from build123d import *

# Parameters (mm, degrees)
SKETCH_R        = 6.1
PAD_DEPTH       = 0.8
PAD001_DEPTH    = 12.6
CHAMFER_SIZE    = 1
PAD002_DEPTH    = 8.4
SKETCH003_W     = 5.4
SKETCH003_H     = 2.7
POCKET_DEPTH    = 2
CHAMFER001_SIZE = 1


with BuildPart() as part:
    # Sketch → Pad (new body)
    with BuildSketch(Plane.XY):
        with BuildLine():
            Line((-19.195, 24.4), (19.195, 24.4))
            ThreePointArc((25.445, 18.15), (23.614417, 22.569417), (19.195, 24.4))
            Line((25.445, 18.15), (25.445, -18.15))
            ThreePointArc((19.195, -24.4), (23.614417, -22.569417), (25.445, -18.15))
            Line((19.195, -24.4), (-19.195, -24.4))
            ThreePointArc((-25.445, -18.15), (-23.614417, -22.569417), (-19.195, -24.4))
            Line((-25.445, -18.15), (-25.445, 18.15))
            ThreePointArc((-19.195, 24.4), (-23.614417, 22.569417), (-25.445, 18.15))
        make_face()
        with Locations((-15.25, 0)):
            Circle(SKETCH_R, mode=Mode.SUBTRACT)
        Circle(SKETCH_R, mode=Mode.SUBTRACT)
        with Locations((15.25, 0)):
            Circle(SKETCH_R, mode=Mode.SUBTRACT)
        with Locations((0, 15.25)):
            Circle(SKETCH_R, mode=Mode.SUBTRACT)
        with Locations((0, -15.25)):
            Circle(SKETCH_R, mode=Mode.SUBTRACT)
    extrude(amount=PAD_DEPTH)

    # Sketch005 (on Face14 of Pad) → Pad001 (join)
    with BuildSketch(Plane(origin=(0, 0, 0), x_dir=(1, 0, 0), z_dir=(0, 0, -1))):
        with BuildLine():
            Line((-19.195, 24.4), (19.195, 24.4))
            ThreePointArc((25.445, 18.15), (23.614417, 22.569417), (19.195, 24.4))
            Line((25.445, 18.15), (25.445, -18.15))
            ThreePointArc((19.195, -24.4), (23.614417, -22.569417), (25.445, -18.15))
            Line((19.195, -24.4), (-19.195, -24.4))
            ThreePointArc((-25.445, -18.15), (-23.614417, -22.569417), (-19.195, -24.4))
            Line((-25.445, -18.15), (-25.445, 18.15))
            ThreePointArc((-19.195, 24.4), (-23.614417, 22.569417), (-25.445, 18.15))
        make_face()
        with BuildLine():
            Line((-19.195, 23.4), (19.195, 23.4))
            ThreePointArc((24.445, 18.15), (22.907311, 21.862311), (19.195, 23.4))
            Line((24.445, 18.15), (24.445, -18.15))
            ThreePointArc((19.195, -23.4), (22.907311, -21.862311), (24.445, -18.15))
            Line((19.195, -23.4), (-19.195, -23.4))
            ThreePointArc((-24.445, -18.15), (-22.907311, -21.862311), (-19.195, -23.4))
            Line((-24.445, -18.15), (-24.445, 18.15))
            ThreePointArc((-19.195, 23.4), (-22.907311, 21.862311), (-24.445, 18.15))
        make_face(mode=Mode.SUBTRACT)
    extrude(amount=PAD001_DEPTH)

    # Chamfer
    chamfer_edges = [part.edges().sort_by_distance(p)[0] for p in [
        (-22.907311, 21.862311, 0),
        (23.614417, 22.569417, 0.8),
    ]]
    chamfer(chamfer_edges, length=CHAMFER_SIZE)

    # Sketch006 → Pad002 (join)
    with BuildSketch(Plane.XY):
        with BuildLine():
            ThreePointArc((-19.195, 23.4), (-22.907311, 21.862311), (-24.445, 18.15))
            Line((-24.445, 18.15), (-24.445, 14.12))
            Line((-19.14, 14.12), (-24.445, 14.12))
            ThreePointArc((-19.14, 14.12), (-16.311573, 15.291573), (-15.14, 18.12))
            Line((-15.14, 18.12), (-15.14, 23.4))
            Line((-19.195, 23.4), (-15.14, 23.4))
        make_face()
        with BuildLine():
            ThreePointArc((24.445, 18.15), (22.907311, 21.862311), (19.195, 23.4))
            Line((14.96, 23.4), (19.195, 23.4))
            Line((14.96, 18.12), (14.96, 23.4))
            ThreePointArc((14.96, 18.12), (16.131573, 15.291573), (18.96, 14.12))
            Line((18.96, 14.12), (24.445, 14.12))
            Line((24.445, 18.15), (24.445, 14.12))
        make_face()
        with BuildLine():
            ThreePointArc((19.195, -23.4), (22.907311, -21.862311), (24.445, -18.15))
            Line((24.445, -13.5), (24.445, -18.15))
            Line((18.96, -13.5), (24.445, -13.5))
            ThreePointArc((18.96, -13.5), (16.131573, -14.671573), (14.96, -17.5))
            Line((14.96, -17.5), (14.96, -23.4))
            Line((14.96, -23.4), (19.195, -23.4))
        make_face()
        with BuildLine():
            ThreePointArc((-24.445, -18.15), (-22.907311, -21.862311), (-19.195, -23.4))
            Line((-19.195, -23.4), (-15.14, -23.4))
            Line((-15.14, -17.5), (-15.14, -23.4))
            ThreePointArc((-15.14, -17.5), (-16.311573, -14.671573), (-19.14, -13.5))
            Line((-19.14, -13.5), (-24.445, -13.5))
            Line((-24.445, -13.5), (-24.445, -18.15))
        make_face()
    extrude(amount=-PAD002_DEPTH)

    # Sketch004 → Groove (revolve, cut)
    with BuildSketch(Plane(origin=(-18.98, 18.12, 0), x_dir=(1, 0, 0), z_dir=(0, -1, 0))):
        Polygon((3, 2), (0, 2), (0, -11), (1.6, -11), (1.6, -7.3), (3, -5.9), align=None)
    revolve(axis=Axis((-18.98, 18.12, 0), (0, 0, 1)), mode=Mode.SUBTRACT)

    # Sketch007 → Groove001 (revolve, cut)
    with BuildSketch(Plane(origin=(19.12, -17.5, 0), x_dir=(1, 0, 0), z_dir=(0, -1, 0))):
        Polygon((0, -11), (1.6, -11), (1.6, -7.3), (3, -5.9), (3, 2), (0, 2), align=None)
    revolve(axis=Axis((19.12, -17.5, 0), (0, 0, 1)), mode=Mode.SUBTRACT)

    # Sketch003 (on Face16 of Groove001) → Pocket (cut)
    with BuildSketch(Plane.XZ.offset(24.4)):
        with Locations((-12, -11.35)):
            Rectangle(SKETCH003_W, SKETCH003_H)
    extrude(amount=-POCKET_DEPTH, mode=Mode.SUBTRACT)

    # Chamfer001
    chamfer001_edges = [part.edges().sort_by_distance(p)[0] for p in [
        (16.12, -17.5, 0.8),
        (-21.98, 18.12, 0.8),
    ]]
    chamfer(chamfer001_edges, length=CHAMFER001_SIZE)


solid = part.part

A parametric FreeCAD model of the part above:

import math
import FreeCAD as App
import Part
import Sketcher
Q = App.Units.Quantity


def edges_at(feature, points):
    """Names of the edges that pass closest to the given points."""
    edges = feature.Shape.Edges
    near = lambda p: min(range(len(edges)), key=lambda i: edges[i].distToShape(Part.Vertex(*p))[0])
    return sorted({f"Edge{near(p) + 1}" for p in points})


def add_polygon(sketch, points):
    """Adds a closed chain of lines whose ends are joined by coincident constraints."""
    first, n = sketch.GeometryCount, len(points)
    for a, b in zip(points, points[1:] + points[:1]):
        sketch.addGeometry(Part.LineSegment(App.Vector(*a, 0), App.Vector(*b, 0)), False)
    for i in range(n):
        sketch.addConstraint(Sketcher.Constraint("Coincident", first + i, 2, first + (i + 1) % n, 1))

doc = App.newDocument("Part")
body = doc.addObject("PartDesign::Body", "Body")

sketch1 = body.newObject("Sketcher::SketchObject", "Sketch")
sketch1.AttachmentSupport = (doc.getObject("XY_Plane"), [""])
sketch1.MapMode = "FlatFace"
sketch1.addGeometry([
    Part.LineSegment(App.Vector(19.195, 24.4, 0), App.Vector(-19.195, 24.4, 0)),
    Part.ArcOfCircle(Part.Circle(App.Vector(-19.194999, 18.149999, 0), App.Vector(0, 0, 1), 6.250001), math.radians(90.000012), math.radians(179.999988)),
    Part.LineSegment(App.Vector(-25.445, 18.15, 0), App.Vector(-25.445, -18.15, 0)),
    Part.ArcOfCircle(Part.Circle(App.Vector(-19.194999, -18.149999, 0), App.Vector(0, 0, 1), 6.250001), math.radians(-179.999988), math.radians(-90.000012)),
    Part.LineSegment(App.Vector(-19.195, -24.4, 0), App.Vector(19.195, -24.4, 0)),
    Part.ArcOfCircle(Part.Circle(App.Vector(19.194999, -18.149999, 0), App.Vector(0, 0, 1), 6.250001), math.radians(-89.999988), math.radians(-0.000012)),
    Part.LineSegment(App.Vector(25.445, -18.15, 0), App.Vector(25.445, 18.15, 0)),
    Part.ArcOfCircle(Part.Circle(App.Vector(19.194999, 18.149999, 0), App.Vector(0, 0, 1), 6.250001), math.radians(0.000012), math.radians(89.999988)),
    Part.Circle(App.Vector(0, -15.25, 0), App.Vector(0, 0, 1), 6.1),
    Part.Circle(App.Vector(15.25, 0, 0), App.Vector(0, 0, 1), 6.1),
    Part.Circle(App.Vector(0, 0, 0), App.Vector(0, 0, 1), 6.1),
    Part.Circle(App.Vector(-15.25, 0, 0), App.Vector(0, 0, 1), 6.1),
    Part.Circle(App.Vector(0, 15.25, 0), App.Vector(0, 0, 1), 6.1),
], False)
sketch1.addConstraint([
    Sketcher.Constraint("Tangent", 0, 2, 1, 1),
    Sketcher.Constraint("Tangent", 1, 2, 2, 1),
    Sketcher.Constraint("Tangent", 2, 2, 3, 1),
    Sketcher.Constraint("Tangent", 3, 2, 4, 1),
    Sketcher.Constraint("Tangent", 4, 2, 5, 1),
    Sketcher.Constraint("Tangent", 5, 2, 6, 1),
    Sketcher.Constraint("Tangent", 6, 2, 7, 1),
    Sketcher.Constraint("Tangent", 7, 2, 0, 1),
    Sketcher.Constraint("Horizontal", 0),
    Sketcher.Constraint("Vertical", 2),
    Sketcher.Constraint("Horizontal", 4),
    Sketcher.Constraint("Vertical", 6),
    Sketcher.Constraint("Coincident", 10, 3, -1, 1),
    Sketcher.Constraint("Equal", 1, 3),
    Sketcher.Constraint("Equal", 3, 5),
    Sketcher.Constraint("Equal", 5, 7),
    Sketcher.Constraint("Equal", 8, 9),
    Sketcher.Constraint("Equal", 9, 10),
    Sketcher.Constraint("Equal", 10, 11),
    Sketcher.Constraint("Equal", 11, 12),
    Sketcher.Constraint("Symmetric", 1, 3, 5, 3, -1, 1),
    Sketcher.Constraint("Symmetric", 9, 3, 11, 3, -1, 1),
    Sketcher.Constraint("Symmetric", 8, 3, 12, 3, -1, 1),
    Sketcher.Constraint("PointOnObject", 8, 3, -2),
    Sketcher.Constraint("PointOnObject", 9, 3, -1),
    Sketcher.Constraint("Diameter", 8, 12.2),
    Sketcher.Constraint("Radius", 1, 6.250001),
    Sketcher.Constraint("DistanceY", 2, 2, 2, 1, 36.3),
    Sketcher.Constraint("DistanceX", 0, 2, 0, 1, 38.39),
    Sketcher.Constraint("DistanceY", 3, 3, 8, 3, 2.899999),
    Sketcher.Constraint("DistanceX", 11, 3, 9, 3, 30.5),
])
pad1 = body.newObject("PartDesign::Pad", "Pad")
pad1.Profile = sketch1
pad1.Length = 0.8

sketch2 = body.newObject("Sketcher::SketchObject", "Sketch001")
sketch2.AttachmentSupport = (doc.getObject("XY_Plane"), [""])
sketch2.MapMode = "FlatFace"
sketch2.addGeometry([
    Part.LineSegment(App.Vector(19.195, -24.4, 0), App.Vector(-19.195, -24.4, 0)),
    Part.ArcOfCircle(Part.Circle(App.Vector(-19.194999, -18.149999, 0), App.Vector(0, 0, 1), 6.250001), math.radians(-179.999988), math.radians(-90.000012)),
    Part.LineSegment(App.Vector(-25.445, -18.15, 0), App.Vector(-25.445, 18.15, 0)),
    Part.ArcOfCircle(Part.Circle(App.Vector(-19.194999, 18.149999, 0), App.Vector(0, 0, 1), 6.250001), math.radians(90.000012), math.radians(179.999988)),
    Part.LineSegment(App.Vector(-19.195, 24.4, 0), App.Vector(19.195, 24.4, 0)),
    Part.ArcOfCircle(Part.Circle(App.Vector(19.194999, 18.149999, 0), App.Vector(0, 0, 1), 6.250001), math.radians(0.000012), math.radians(89.999988)),
    Part.LineSegment(App.Vector(25.445, 18.15, 0), App.Vector(25.445, -18.15, 0)),
    Part.ArcOfCircle(Part.Circle(App.Vector(19.194999, -18.149999, 0), App.Vector(0, 0, 1), 6.250001), math.radians(-89.999988), math.radians(-0.000012)),
    Part.LineSegment(App.Vector(-19.195, -23.4, 0), App.Vector(19.195, -23.4, 0)),
    Part.ArcOfCircle(Part.Circle(App.Vector(19.195001, -18.150001, 0), App.Vector(0, 0, 1), 5.249999), math.radians(-90.000015), math.radians(0.000015)),
    Part.LineSegment(App.Vector(24.445, -18.15, 0), App.Vector(24.445, 18.15, 0)),
    Part.ArcOfCircle(Part.Circle(App.Vector(19.195001, 18.150001, 0), App.Vector(0, 0, 1), 5.249999), math.radians(-0.000015), math.radians(90.000015)),
    Part.LineSegment(App.Vector(19.195, 23.4, 0), App.Vector(-19.195, 23.4, 0)),
    Part.ArcOfCircle(Part.Circle(App.Vector(-19.195001, 18.150001, 0), App.Vector(0, 0, 1), 5.249999), math.radians(89.999985), math.radians(180.000015)),
    Part.LineSegment(App.Vector(-24.445, 18.15, 0), App.Vector(-24.445, -18.15, 0)),
    Part.ArcOfCircle(Part.Circle(App.Vector(-19.195001, -18.150001, 0), App.Vector(0, 0, 1), 5.249999), math.radians(179.999985), math.radians(270.000015)),
], False)
sketch2.addConstraint([
    Sketcher.Constraint("Tangent", 0, 2, 1, 2),
    Sketcher.Constraint("Tangent", 1, 1, 2, 1),
    Sketcher.Constraint("Tangent", 2, 2, 3, 2),
    Sketcher.Constraint("Tangent", 3, 1, 4, 1),
    Sketcher.Constraint("Tangent", 4, 2, 5, 2),
    Sketcher.Constraint("Tangent", 5, 1, 6, 1),
    Sketcher.Constraint("Tangent", 6, 2, 7, 2),
    Sketcher.Constraint("Tangent", 7, 1, 0, 1),
    Sketcher.Constraint("Tangent", 8, 2, 9, 1),
    Sketcher.Constraint("Tangent", 9, 2, 10, 1),
    Sketcher.Constraint("Tangent", 10, 2, 11, 1),
    Sketcher.Constraint("Tangent", 11, 2, 12, 1),
    Sketcher.Constraint("Tangent", 12, 2, 13, 1),
    Sketcher.Constraint("Tangent", 13, 2, 14, 1),
    Sketcher.Constraint("Tangent", 14, 2, 15, 1),
    Sketcher.Constraint("Tangent", 15, 2, 8, 1),
    Sketcher.Constraint("Horizontal", 0),
    Sketcher.Constraint("Vertical", 2),
    Sketcher.Constraint("Horizontal", 4),
    Sketcher.Constraint("Vertical", 6),
    Sketcher.Constraint("Horizontal", 8),
    Sketcher.Constraint("Vertical", 10),
    Sketcher.Constraint("Horizontal", 12),
    Sketcher.Constraint("Vertical", 14),
    Sketcher.Constraint("Coincident", 9, 3, 7, 3),
    Sketcher.Constraint("Coincident", 11, 3, 5, 3),
    Sketcher.Constraint("Coincident", 13, 3, 3, 3),
    Sketcher.Constraint("Equal", 1, 3),
    Sketcher.Constraint("Equal", 3, 5),
    Sketcher.Constraint("Equal", 5, 7),
    Sketcher.Constraint("Equal", 13, 15),
    Sketcher.Constraint("Symmetric", 1, 3, 5, 3, -1, 1),
    Sketcher.Constraint("Radius", 1, 6.250001),
    Sketcher.Constraint("Radius", 9, 5.249999),
    Sketcher.Constraint("DistanceY", 2, 1, 2, 2, 36.3),
    Sketcher.Constraint("DistanceX", 0, 2, 0, 1, 38.39),
])
pad2 = body.newObject("PartDesign::Pad", "Pad001")
pad2.Profile = sketch2
pad2.Length = 12.6
pad2.Reversed = True
doc.recompute()

chamfer = body.newObject("PartDesign::Chamfer", "Chamfer")
chamfer.Base = (pad2, edges_at(pad2, [(-22.907, 21.862, 0), (23.614, 22.569, 0.8)]))
chamfer.Size = 1

sketch3 = body.newObject("Sketcher::SketchObject", "Sketch002")
sketch3.AttachmentSupport = (doc.getObject("XY_Plane"), [""])
sketch3.MapMode = "FlatFace"
sketch3.addGeometry([
    Part.ArcOfCircle(Part.Circle(App.Vector(-19.195001, 18.150001, 0), App.Vector(0, 0, 1), 5.249999), math.radians(89.999985), math.radians(180.000015)),
    Part.LineSegment(App.Vector(-24.445, 18.15, 0), App.Vector(-24.445, 14.12, 0)),
    Part.LineSegment(App.Vector(-24.445, 14.12, 0), App.Vector(-19.14, 14.12, 0)),
    Part.ArcOfCircle(Part.Circle(App.Vector(-19.14, 18.12, 0), App.Vector(0, 0, 1), 4), math.radians(-89.999994), math.radians(-0.000006)),
    Part.LineSegment(App.Vector(-15.14, 18.12, 0), App.Vector(-15.14, 23.4, 0)),
    Part.LineSegment(App.Vector(-15.14, 23.4, 0), App.Vector(-19.195, 23.4, 0)),
    Part.ArcOfCircle(Part.Circle(App.Vector(19.195001, 18.150001, 0), App.Vector(0, 0, 1), 5.249999), math.radians(-0.000015), math.radians(90.000015)),
    Part.LineSegment(App.Vector(19.195, 23.4, 0), App.Vector(14.96, 23.4, 0)),
    Part.LineSegment(App.Vector(14.96, 23.4, 0), App.Vector(14.96, 18.12, 0)),
    Part.ArcOfCircle(Part.Circle(App.Vector(18.96, 18.12, 0), App.Vector(0, 0, 1), 4), math.radians(-179.999994), math.radians(-90.000006)),
    Part.LineSegment(App.Vector(18.96, 14.12, 0), App.Vector(24.445, 14.12, 0)),
    Part.LineSegment(App.Vector(24.445, 14.12, 0), App.Vector(24.445, 18.15, 0)),
    Part.ArcOfCircle(Part.Circle(App.Vector(19.195001, -18.150001, 0), App.Vector(0, 0, 1), 5.249999), math.radians(-90.000015), math.radians(0.000015)),
    Part.LineSegment(App.Vector(24.445, -18.15, 0), App.Vector(24.445, -13.5, 0)),
    Part.LineSegment(App.Vector(24.445, -13.5, 0), App.Vector(18.96, -13.5, 0)),
    Part.ArcOfCircle(Part.Circle(App.Vector(18.96, -17.5, 0), App.Vector(0, 0, 1), 4), math.radians(90.000006), math.radians(179.999994)),
    Part.LineSegment(App.Vector(14.96, -17.5, 0), App.Vector(14.96, -23.4, 0)),
    Part.LineSegment(App.Vector(14.96, -23.4, 0), App.Vector(19.195, -23.4, 0)),
    Part.ArcOfCircle(Part.Circle(App.Vector(-19.195001, -18.150001, 0), App.Vector(0, 0, 1), 5.249999), math.radians(179.999985), math.radians(270.000015)),
    Part.LineSegment(App.Vector(-19.195, -23.4, 0), App.Vector(-15.14, -23.4, 0)),
    Part.LineSegment(App.Vector(-15.14, -23.4, 0), App.Vector(-15.14, -17.5, 0)),
    Part.ArcOfCircle(Part.Circle(App.Vector(-19.14, -17.5, 0), App.Vector(0, 0, 1), 4), math.radians(0.000006), math.radians(89.999994)),
    Part.LineSegment(App.Vector(-19.14, -13.5, 0), App.Vector(-24.445, -13.5, 0)),
    Part.LineSegment(App.Vector(-24.445, -13.5, 0), App.Vector(-24.445, -18.15, 0)),
], False)
sketch3.addConstraint([
    Sketcher.Constraint("Tangent", 0, 2, 1, 1),
    Sketcher.Constraint("Coincident", 1, 2, 2, 1),
    Sketcher.Constraint("Tangent", 2, 2, 3, 1),
    Sketcher.Constraint("Tangent", 3, 2, 4, 1),
    Sketcher.Constraint("Coincident", 4, 2, 5, 1),
    Sketcher.Constraint("Tangent", 5, 2, 0, 1),
    Sketcher.Constraint("Tangent", 6, 2, 7, 1),
    Sketcher.Constraint("Coincident", 7, 2, 8, 1),
    Sketcher.Constraint("Tangent", 8, 2, 9, 1),
    Sketcher.Constraint("Tangent", 9, 2, 10, 1),
    Sketcher.Constraint("Coincident", 10, 2, 11, 1),
    Sketcher.Constraint("Tangent", 11, 2, 6, 1),
    Sketcher.Constraint("Tangent", 12, 2, 13, 1),
    Sketcher.Constraint("Coincident", 13, 2, 14, 1),
    Sketcher.Constraint("Tangent", 14, 2, 15, 1),
    Sketcher.Constraint("Tangent", 15, 2, 16, 1),
    Sketcher.Constraint("Coincident", 16, 2, 17, 1),
    Sketcher.Constraint("Tangent", 17, 2, 12, 1),
    Sketcher.Constraint("Tangent", 18, 2, 19, 1),
    Sketcher.Constraint("Coincident", 19, 2, 20, 1),
    Sketcher.Constraint("Tangent", 20, 2, 21, 1),
    Sketcher.Constraint("Tangent", 21, 2, 22, 1),
    Sketcher.Constraint("Coincident", 22, 2, 23, 1),
    Sketcher.Constraint("Tangent", 23, 2, 18, 1),
    Sketcher.Constraint("Vertical", 1),
    Sketcher.Constraint("Horizontal", 2),
    Sketcher.Constraint("Vertical", 4),
    Sketcher.Constraint("Horizontal", 5),
    Sketcher.Constraint("Horizontal", 7),
    Sketcher.Constraint("Vertical", 8),
    Sketcher.Constraint("Horizontal", 10),
    Sketcher.Constraint("Vertical", 11),
    Sketcher.Constraint("Vertical", 13),
    Sketcher.Constraint("Horizontal", 14),
    Sketcher.Constraint("Vertical", 16),
    Sketcher.Constraint("Horizontal", 17),
    Sketcher.Constraint("Horizontal", 19),
    Sketcher.Constraint("Vertical", 20),
    Sketcher.Constraint("Horizontal", 22),
    Sketcher.Constraint("Vertical", 23),
    Sketcher.Constraint("Equal", 0, 6),
    Sketcher.Constraint("Equal", 3, 9),
    Sketcher.Constraint("Equal", 6, 12),
    Sketcher.Constraint("Equal", 9, 15),
    Sketcher.Constraint("Equal", 12, 18),
    Sketcher.Constraint("Equal", 15, 21),
    Sketcher.Constraint("Symmetric", 0, 3, 12, 3, -1, 1),
    Sketcher.Constraint("Symmetric", 6, 3, 18, 3, -1, 1),
    Sketcher.Constraint("Symmetric", 0, 3, 6, 3, -2),
    Sketcher.Constraint("Horizontal", 3, 3, 9, 3),
    Sketcher.Constraint("Horizontal", 15, 3, 21, 3),
    Sketcher.Constraint("Vertical", 9, 3, 15, 3),
    Sketcher.Constraint("Vertical", 3, 3, 21, 3),
    Sketcher.Constraint("Radius", 3, 4.0),
    Sketcher.Constraint("Radius", 0, 5.249999),
    Sketcher.Constraint("DistanceY", 16, 2, 16, 1, 5.9),
    Sketcher.Constraint("DistanceY", 1, 2, 1, 1, 4.03),
    Sketcher.Constraint("DistanceY", 15, 3, -1, 1, 17.5),
    Sketcher.Constraint("DistanceX", 3, 3, 9, 3, 38.100001),
    Sketcher.Constraint("DistanceX", 2, 1, 2, 2, 5.305),
    Sketcher.Constraint("DistanceX", 7, 2, 7, 1, 4.235),
])
pad3 = body.newObject("PartDesign::Pad", "Pad002")
pad3.Profile = sketch3
pad3.Length = 8.4
pad3.Reversed = True

sketch4 = body.newObject("Sketcher::SketchObject", "Sketch003")
sketch4.AttachmentSupport = (doc.getObject("XZ_Plane"), [""])
sketch4.MapMode = "FlatFace"
sketch4.AttachmentOffset = App.Placement(App.Vector(0, 0, -18.12), App.Rotation())
add_polygon(sketch4, [(-15.98, 2), (-18.98, 2), (-18.98, -11), (-17.38, -11), (-17.38, -7.3), (-15.98, -5.9)])
sketch4.addGeometry(Part.LineSegment(App.Vector(-18.98, -11, 0), App.Vector(-18.98, 2, 0)), True)
sketch4.addConstraint([
    Sketcher.Constraint("Horizontal", 0),
    Sketcher.Constraint("Vertical", 1),
    Sketcher.Constraint("Horizontal", 2),
    Sketcher.Constraint("Vertical", 3),
    Sketcher.Constraint("Vertical", 5),
    Sketcher.Constraint("Vertical", 6),
    Sketcher.Constraint("Coincident", 6, 1, 1, 2),
    Sketcher.Constraint("Horizontal", 5, 2, 6, 2),
    Sketcher.Constraint("DistanceX", 0, 2, 0, 1, 3.0),
    Sketcher.Constraint("DistanceY", 1, 2, 1, 1, 13.0),
    Sketcher.Constraint("Angle", 4, Q("45 deg")),
    Sketcher.Constraint("DistanceX", 2, 1, 2, 2, 1.6),
    Sketcher.Constraint("DistanceY", 3, 1, 3, 2, 3.7),
    Sketcher.Constraint("DistanceY", -1, 1, 0, 2, 2.0),
    Sketcher.Constraint("DistanceX", 0, 2, -1, 1, 18.98),
])
groove = body.newObject("PartDesign::Groove", "Groove")
groove.Profile = sketch4
groove.ReferenceAxis = (sketch4, ["Axis0"])
groove.Angle = 360

sketch5 = body.newObject("Sketcher::SketchObject", "Sketch004")
sketch5.AttachmentSupport = (doc.getObject("XZ_Plane"), [""])
sketch5.MapMode = "FlatFace"
sketch5.AttachmentOffset = App.Placement(App.Vector(0, 0, 17.5), App.Rotation())
add_polygon(sketch5, [(19.12, -11), (20.72, -11), (20.72, -7.3), (22.12, -5.9), (22.12, 2), (19.12, 2)])
sketch5.addGeometry(Part.LineSegment(App.Vector(19.12, -11, 0), App.Vector(19.12, 2, 0)), True)
sketch5.addConstraint([
    Sketcher.Constraint("Horizontal", 0),
    Sketcher.Constraint("Vertical", 1),
    Sketcher.Constraint("Vertical", 3),
    Sketcher.Constraint("Horizontal", 4),
    Sketcher.Constraint("Vertical", 5),
    Sketcher.Constraint("Vertical", 6),
    Sketcher.Constraint("Coincident", 6, 1, 5, 2),
    Sketcher.Constraint("Horizontal", 3, 2, 6, 2),
    Sketcher.Constraint("DistanceX", 4, 2, 4, 1, 3.0),
    Sketcher.Constraint("DistanceY", 5, 2, 5, 1, 13.0),
    Sketcher.Constraint("Angle", 2, Q("45 deg")),
    Sketcher.Constraint("DistanceX", 0, 1, 0, 2, 1.6),
    Sketcher.Constraint("DistanceY", 1, 1, 1, 2, 3.7),
    Sketcher.Constraint("DistanceY", 0, 2, -1, 1, 11.0),
    Sketcher.Constraint("DistanceX", -1, 1, 0, 2, 20.72),
])
groove2 = body.newObject("PartDesign::Groove", "Groove001")
groove2.Profile = sketch5
groove2.ReferenceAxis = (sketch5, ["Axis0"])
groove2.Angle = 360

sketch6 = body.newObject("Sketcher::SketchObject", "Sketch005")
sketch6.AttachmentSupport = (doc.getObject("XZ_Plane"), [""])
sketch6.MapMode = "FlatFace"
sketch6.AttachmentOffset = App.Placement(App.Vector(0, 0, 24.4), App.Rotation())
add_polygon(sketch6, [(-14.7, -10), (-14.7, -12.7), (-9.3, -12.7), (-9.3, -10)])
sketch6.addConstraint([
    Sketcher.Constraint("Vertical", 0),
    Sketcher.Constraint("Horizontal", 1),
    Sketcher.Constraint("Vertical", 2),
    Sketcher.Constraint("Horizontal", 3),
    Sketcher.Constraint("DistanceX", 1, 1, 1, 2, 5.4),
    Sketcher.Constraint("DistanceY", 0, 2, 0, 1, 2.7),
    Sketcher.Constraint("DistanceY", 2, 2, -1, 1, 10.0),
    Sketcher.Constraint("DistanceX", 0, 2, -1, 1, 14.7),
])
pocket1 = body.newObject("PartDesign::Pocket", "Pocket")
pocket1.Profile = sketch6
pocket1.Length = 2
doc.recompute()

chamfer2 = body.newObject("PartDesign::Chamfer", "Chamfer001")
chamfer2.Base = (pocket1, edges_at(pocket1, [(16.12, -17.5, 0.8), (-21.98, 18.12, 0.8)]))
chamfer2.Size = 1

doc.recompute()
